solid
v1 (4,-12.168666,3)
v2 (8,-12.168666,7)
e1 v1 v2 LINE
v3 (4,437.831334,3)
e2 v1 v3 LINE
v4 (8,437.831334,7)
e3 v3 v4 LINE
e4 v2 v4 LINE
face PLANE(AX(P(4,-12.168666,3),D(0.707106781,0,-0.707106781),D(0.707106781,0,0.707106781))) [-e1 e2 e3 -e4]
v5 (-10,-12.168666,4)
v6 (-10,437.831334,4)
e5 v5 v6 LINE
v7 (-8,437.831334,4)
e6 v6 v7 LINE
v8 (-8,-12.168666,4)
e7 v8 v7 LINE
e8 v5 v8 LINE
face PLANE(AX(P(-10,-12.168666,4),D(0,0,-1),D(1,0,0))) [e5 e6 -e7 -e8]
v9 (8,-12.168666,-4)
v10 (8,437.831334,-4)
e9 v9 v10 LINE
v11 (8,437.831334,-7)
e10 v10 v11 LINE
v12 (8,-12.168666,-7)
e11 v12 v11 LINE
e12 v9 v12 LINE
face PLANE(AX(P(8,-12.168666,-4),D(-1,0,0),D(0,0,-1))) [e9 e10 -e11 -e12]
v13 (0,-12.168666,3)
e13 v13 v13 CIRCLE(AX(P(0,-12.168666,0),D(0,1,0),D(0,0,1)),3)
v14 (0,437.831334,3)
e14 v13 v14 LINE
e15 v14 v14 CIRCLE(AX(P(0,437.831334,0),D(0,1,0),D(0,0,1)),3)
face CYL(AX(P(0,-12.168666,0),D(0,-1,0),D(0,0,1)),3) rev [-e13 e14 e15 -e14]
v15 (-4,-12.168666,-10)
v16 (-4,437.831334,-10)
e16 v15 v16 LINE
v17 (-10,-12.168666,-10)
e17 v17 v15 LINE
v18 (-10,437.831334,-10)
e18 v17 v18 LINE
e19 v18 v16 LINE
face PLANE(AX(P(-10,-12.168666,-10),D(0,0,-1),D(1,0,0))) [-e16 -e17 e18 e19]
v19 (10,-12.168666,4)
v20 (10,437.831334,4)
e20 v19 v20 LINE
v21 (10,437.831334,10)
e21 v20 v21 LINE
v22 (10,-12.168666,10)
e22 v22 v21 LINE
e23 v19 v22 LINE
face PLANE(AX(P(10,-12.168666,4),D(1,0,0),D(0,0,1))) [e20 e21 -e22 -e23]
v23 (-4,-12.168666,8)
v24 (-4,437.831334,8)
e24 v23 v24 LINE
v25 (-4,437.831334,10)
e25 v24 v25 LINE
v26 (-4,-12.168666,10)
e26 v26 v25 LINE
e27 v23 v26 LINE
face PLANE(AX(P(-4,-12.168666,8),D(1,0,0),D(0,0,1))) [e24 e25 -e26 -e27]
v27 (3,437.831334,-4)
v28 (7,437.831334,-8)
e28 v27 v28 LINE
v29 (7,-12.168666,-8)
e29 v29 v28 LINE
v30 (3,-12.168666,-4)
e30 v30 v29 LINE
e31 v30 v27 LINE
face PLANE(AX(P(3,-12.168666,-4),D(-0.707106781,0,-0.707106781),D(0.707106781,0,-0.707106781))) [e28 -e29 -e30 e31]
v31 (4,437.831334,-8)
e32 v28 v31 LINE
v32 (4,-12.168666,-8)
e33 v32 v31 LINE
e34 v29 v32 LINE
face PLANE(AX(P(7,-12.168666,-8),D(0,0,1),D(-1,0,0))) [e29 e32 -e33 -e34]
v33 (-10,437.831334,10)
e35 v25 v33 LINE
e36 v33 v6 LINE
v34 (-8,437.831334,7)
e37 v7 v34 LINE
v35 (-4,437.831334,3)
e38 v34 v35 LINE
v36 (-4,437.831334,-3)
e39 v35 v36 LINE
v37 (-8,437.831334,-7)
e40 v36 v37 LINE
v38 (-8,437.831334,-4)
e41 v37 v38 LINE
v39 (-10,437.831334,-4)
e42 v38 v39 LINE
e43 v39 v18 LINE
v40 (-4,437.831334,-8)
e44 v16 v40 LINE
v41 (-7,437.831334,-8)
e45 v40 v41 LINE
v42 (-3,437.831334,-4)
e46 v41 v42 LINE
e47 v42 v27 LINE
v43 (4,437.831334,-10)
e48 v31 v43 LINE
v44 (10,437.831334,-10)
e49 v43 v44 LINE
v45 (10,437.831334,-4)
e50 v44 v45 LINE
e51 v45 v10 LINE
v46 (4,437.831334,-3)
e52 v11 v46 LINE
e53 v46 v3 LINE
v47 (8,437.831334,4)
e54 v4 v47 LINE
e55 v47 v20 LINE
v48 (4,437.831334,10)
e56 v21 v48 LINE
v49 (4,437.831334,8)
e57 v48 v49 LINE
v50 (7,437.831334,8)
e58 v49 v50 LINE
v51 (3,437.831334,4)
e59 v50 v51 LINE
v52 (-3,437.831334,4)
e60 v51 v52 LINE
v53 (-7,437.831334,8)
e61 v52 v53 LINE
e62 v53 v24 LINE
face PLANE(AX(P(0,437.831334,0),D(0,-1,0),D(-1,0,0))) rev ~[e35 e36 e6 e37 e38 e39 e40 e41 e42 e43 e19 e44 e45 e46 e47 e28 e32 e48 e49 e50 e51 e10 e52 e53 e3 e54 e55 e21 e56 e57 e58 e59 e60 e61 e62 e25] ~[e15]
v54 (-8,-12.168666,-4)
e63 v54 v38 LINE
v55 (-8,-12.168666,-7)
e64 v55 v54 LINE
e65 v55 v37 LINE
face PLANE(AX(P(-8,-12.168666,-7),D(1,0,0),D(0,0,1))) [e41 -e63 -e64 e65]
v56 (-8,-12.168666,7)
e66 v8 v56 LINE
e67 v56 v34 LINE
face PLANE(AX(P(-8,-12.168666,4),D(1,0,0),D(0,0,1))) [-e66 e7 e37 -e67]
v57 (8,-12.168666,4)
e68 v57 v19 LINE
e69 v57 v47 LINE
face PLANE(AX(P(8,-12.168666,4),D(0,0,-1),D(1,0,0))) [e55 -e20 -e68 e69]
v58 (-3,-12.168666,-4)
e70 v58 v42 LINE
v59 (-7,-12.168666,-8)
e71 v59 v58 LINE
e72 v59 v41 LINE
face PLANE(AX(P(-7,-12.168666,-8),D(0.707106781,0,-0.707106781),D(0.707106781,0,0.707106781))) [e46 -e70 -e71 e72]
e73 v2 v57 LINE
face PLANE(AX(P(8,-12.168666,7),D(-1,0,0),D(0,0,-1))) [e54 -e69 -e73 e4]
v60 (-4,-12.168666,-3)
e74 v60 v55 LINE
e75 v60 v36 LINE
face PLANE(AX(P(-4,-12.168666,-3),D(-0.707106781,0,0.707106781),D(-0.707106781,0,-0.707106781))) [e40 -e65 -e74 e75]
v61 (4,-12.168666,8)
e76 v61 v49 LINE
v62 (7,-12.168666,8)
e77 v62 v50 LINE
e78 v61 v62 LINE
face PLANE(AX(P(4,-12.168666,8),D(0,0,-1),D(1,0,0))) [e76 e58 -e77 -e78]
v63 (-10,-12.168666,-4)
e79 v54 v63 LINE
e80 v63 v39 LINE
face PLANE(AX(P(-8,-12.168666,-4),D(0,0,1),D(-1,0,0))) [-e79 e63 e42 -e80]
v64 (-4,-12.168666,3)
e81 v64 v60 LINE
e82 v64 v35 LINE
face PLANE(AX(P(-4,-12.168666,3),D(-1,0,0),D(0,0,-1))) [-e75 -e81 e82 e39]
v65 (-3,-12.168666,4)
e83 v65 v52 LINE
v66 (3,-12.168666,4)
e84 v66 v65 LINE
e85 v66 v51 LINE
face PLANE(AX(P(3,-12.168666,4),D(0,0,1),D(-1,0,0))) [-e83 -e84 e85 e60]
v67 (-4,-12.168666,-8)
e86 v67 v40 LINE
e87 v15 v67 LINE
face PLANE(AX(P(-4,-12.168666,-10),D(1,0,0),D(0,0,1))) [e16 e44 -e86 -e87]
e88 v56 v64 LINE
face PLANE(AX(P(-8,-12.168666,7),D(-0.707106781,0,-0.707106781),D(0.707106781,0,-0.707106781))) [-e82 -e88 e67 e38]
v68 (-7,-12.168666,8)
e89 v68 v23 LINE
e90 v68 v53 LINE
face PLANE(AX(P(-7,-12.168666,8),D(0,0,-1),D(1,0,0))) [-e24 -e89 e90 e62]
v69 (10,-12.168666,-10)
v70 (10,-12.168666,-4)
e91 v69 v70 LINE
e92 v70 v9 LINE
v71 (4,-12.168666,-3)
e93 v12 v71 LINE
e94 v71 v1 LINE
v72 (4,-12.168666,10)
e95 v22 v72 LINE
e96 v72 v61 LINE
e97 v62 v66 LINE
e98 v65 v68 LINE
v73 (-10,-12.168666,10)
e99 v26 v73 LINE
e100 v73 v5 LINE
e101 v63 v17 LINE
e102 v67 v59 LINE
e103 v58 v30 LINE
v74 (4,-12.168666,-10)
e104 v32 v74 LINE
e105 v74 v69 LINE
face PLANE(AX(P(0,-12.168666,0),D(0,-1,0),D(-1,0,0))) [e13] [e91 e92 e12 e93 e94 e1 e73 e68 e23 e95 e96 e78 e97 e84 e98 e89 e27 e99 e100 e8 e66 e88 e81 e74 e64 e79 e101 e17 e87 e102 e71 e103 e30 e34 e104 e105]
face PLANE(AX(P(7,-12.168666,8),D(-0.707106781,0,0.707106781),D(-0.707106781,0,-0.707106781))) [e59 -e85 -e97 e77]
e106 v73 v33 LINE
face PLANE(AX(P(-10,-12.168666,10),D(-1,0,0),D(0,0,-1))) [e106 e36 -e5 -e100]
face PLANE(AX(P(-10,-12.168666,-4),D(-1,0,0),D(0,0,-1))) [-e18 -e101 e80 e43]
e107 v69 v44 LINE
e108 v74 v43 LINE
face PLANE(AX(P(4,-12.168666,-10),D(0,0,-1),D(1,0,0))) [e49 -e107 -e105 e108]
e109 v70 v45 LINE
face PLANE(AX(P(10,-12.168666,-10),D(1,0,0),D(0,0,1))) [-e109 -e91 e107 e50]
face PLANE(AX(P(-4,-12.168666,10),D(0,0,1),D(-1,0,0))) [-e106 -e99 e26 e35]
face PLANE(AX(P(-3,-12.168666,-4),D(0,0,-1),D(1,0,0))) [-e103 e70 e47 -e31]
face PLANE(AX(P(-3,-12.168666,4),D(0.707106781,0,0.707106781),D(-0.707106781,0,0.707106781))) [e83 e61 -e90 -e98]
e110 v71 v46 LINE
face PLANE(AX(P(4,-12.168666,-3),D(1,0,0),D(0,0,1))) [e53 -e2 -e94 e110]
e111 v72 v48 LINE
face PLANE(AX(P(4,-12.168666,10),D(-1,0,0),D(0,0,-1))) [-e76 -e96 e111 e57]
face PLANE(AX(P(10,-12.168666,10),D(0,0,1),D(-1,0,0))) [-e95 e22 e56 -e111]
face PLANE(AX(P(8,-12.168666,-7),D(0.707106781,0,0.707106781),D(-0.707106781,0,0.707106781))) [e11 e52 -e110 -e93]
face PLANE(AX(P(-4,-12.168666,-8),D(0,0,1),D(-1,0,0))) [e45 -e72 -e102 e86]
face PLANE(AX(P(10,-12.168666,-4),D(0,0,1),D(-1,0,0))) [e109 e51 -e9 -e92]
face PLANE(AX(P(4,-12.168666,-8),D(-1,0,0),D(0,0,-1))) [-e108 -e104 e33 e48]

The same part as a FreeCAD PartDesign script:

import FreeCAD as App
import Part
import Sketcher

V = App.Vector
Q = App.Units.Quantity


def add_polygon(sketch, points):
    """Adds a closed chain of lines whose ends are joined by coincident constraints."""
    first, n = sketch.GeometryCount, len(points)
    for a, b in zip(points, points[1:] + points[:1]):
        sketch.addGeometry(Part.LineSegment(App.Vector(*a, 0), App.Vector(*b, 0)), False)
    for i in range(n):
        sketch.addConstraint(Sketcher.Constraint("Coincident", first + i, 2, first + (i + 1) % n, 1))

doc = App.newDocument("Part")
body = doc.addObject("PartDesign::Body", "Body")

# Sketch on XZ plane
sketch1 = doc.addObject("Sketcher::SketchObject", "Sketch")
body.addObject(sketch1)
sketch1.AttachmentSupport = (doc.XZ_Plane, [""])
sketch1.MapMode = "FlatFace"
sketch1.AttachmentOffset = App.Placement(V(0, 0, 12.168666), App.Rotation())
add_polygon(sketch1, [(-4, -8), (-4, -10), (-10, -10), (-10, -4), (-8, -4), (-8, -7), (-4, -3), (-4, 3), (-8, 7), (-8, 4), (-10, 4), (-10, 10), (-4, 10), (-4, 8), (-7, 8), (-3, 4), (3, 4), (7, 8), (4, 8), (4, 10), (10, 10), (10, 4), (8, 4), (8, 7), (4, 3), (4, -3), (8, -7), (8, -4), (10, -4), (10, -10), (4, -10), (4, -8), (7, -8), (3, -4), (-3, -4), (-7, -8)])  # lines 0-35
sketch1.addGeometry(Part.Circle(V(0, 0, 0), V(0, 0, 1), 3), False)  # 36
sketch1.addConstraint([
    Sketcher.Constraint("Vertical", 0),
    Sketcher.Constraint("Horizontal", 1),
    Sketcher.Constraint("Vertical", 2),
    Sketcher.Constraint("Horizontal", 3),
    Sketcher.Constraint("Vertical", 4),
    Sketcher.Constraint("Vertical", 6),
    Sketcher.Constraint("Vertical", 8),
    Sketcher.Constraint("Horizontal", 9),
    Sketcher.Constraint("Vertical", 10),
    Sketcher.Constraint("Horizontal", 11),
    Sketcher.Constraint("Vertical", 12),
    Sketcher.Constraint("Horizontal", 13),
    Sketcher.Constraint("Horizontal", 15),
    Sketcher.Constraint("Horizontal", 17),
    Sketcher.Constraint("Vertical", 18),
    Sketcher.Constraint("Horizontal", 19),
    Sketcher.Constraint("Vertical", 20),
    Sketcher.Constraint("Horizontal", 21),
    Sketcher.Constraint("Vertical", 22),
    Sketcher.Constraint("Vertical", 24),
    Sketcher.Constraint("Vertical", 26),
    Sketcher.Constraint("Horizontal", 27),
    Sketcher.Constraint("Vertical", 28),
    Sketcher.Constraint("Horizontal", 29),
    Sketcher.Constraint("Vertical", 30),
    Sketcher.Constraint("Horizontal", 31),
    Sketcher.Constraint("Horizontal", 33),
    Sketcher.Constraint("Horizontal", 35),
    Sketcher.Constraint("Coincident", 36, 3, -1, 1),
    Sketcher.Constraint("Symmetric", 0, 2, 18, 2, -1, 1),
    Sketcher.Constraint("Symmetric", 2, 2, 20, 2, -1, 1),
    Sketcher.Constraint("Symmetric", 4, 2, 22, 2, -1, 1),
    Sketcher.Constraint("Symmetric", 5, 2, 23, 2, -1, 1),
    Sketcher.Constraint("Symmetric", 7, 2, 25, 2, -1, 1),
    Sketcher.Constraint("Symmetric", 9, 2, 27, 2, -1, 1),
    Sketcher.Constraint("Symmetric", 11, 2, 29, 2, -1, 1),
    Sketcher.Constraint("Symmetric", 13, 2, 31, 2, -1, 1),
    Sketcher.Constraint("Symmetric", 14, 2, 32, 2, -1, 1),
    Sketcher.Constraint("Symmetric", 16, 2, 34, 2, -1, 1),
    Sketcher.Constraint("Symmetric", 13, 2, 16, 2, -2),
    Sketcher.Constraint("Symmetric", 11, 2, 18, 2, -2),
    Sketcher.Constraint("Symmetric", 9, 2, 20, 2, -2),
    Sketcher.Constraint("Symmetric", 7, 2, 22, 2, -2),
    Sketcher.Constraint("Perpendicular", 5, 7),
    Sketcher.Constraint("Parallel", 7, 14),
    Sketcher.Constraint("Perpendicular", 14, 16),
    Sketcher.Constraint("Perpendicular", 23, 25),
    Sketcher.Constraint("Perpendicular", 32, 34),
    Sketcher.Constraint("Horizontal", 9, 2, 14, 2),
    Sketcher.Constraint("Horizontal", 6, 2, 23, 2),
    Sketcher.Constraint("Vertical", 0, 2, 5, 2),
    Sketcher.Constraint("Equal", 11, 15),
    Sketcher.Constraint("Equal", 27, 0),
    Sketcher.Constraint("Equal", 33, 2),
    Sketcher.Constraint("Equal", 35, 4),
    Sketcher.Constraint("Equal", 2, 6),
    Sketcher.Constraint("Diameter", 36, Q("6 mm")),
    Sketcher.Constraint("DistanceX", 1, 2, 1, 1, Q("6 mm")),
    Sketcher.Constraint("DistanceX", 3, 1, 3, 2, Q("2 mm")),
    Sketcher.Constraint("DistanceX", 13, 2, 13, 1, Q("3 mm")),
])
pad1 = doc.addObject("PartDesign::Pad", "Pad")
body.addObject(pad1)
pad1.Profile = sketch1
pad1.Length = 450
pad1.Reversed = True

doc.recompute()
